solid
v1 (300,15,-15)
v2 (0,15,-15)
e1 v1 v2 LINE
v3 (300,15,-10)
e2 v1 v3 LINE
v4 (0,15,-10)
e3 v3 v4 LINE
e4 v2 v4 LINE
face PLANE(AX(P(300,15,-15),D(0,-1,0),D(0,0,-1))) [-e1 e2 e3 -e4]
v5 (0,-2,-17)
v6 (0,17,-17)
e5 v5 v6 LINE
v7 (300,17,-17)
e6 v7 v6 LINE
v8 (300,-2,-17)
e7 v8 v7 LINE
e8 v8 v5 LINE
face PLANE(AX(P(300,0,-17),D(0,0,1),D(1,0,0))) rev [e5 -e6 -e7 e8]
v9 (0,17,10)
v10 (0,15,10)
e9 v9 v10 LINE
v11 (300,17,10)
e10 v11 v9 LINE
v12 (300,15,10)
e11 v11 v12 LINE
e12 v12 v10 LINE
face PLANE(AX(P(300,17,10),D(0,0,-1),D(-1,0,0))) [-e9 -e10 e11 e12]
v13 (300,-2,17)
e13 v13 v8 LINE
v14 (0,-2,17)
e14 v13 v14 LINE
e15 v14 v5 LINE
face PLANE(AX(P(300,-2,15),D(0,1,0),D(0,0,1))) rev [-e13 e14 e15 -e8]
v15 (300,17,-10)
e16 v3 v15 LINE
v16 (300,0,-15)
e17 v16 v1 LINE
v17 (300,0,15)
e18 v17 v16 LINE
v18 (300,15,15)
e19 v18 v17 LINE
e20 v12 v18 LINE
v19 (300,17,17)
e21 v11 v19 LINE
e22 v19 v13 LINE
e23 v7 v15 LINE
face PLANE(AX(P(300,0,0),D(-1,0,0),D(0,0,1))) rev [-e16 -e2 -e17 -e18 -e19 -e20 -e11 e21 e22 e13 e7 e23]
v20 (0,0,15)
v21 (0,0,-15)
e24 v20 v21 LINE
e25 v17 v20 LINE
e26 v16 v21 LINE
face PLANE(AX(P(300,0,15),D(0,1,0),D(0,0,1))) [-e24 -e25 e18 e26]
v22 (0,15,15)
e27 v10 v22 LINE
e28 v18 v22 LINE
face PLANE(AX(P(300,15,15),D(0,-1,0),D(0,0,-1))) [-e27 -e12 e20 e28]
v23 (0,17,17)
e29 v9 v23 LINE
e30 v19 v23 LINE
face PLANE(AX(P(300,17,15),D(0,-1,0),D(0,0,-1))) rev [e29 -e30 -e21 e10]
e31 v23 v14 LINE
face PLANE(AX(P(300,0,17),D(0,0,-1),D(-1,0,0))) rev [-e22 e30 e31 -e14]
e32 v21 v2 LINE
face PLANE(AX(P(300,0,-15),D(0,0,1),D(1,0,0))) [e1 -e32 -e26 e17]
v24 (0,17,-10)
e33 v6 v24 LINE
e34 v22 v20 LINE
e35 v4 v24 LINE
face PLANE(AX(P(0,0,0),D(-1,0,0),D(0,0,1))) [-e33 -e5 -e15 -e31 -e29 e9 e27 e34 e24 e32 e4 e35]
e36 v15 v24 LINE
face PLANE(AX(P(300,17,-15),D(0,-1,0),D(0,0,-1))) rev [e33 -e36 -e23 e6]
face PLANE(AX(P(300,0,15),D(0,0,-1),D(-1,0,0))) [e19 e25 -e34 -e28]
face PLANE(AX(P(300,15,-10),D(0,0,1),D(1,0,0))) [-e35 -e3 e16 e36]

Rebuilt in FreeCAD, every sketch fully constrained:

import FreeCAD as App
import Part
import Sketcher
Q = App.Units.Quantity


def add_polygon(sketch, points):
    """Adds a closed chain of lines whose ends are joined by coincident constraints."""
    first, n = sketch.GeometryCount, len(points)
    for a, b in zip(points, points[1:] + points[:1]):
        sketch.addGeometry(Part.LineSegment(App.Vector(*a, 0), App.Vector(*b, 0)), False)
    for i in range(n):
        sketch.addConstraint(Sketcher.Constraint("Coincident", first + i, 2, first + (i + 1) % n, 1))

doc = App.newDocument("Part")
body = doc.addObject("PartDesign::Body", "Body")

# Sketch on YZ plane
sketch1 = body.newObject("Sketcher::SketchObject", "Sketch")
sketch1.AttachmentSupport = (doc.getObject("YZ_Plane"), [""])
sketch1.MapMode = "FlatFace"
add_polygon(sketch1, [(15, 15), (15, 10), (17, 10), (17, 17), (-2, 17), (-2, -17), (17, -17), (17, -10), (15, -10), (15, -15), (0, -15), (0, 15)])  # lines 0-11
sketch1.addConstraint([
    Sketcher.Constraint("Vertical", 0),
    Sketcher.Constraint("Horizontal", 1),
    Sketcher.Constraint("Vertical", 2),
    Sketcher.Constraint("Horizontal", 3),
    Sketcher.Constraint("Vertical", 4),
    Sketcher.Constraint("Horizontal", 5),
    Sketcher.Constraint("Vertical", 6),
    Sketcher.Constraint("Horizontal", 7),
    Sketcher.Constraint("Vertical", 8),
    Sketcher.Constraint("Horizontal", 9),
    Sketcher.Constraint("Vertical", 10),
    Sketcher.Constraint("Horizontal", 11),
    Sketcher.Constraint("Symmetric", 9, 2, 10, 2, -1, 1),
    Sketcher.Constraint("Symmetric", 2, 2, 5, 2, -1),
    Sketcher.Constraint("Symmetric", 0, 2, 7, 2, -1),
    Sketcher.Constraint("DistanceX", 1, 1, 1, 2, Q("2 mm")),
    Sketcher.Constraint("DistanceX", 3, 2, 3, 1, Q("19 mm")),
    Sketcher.Constraint("DistanceX", 9, 2, 9, 1, Q("15 mm")),
    Sketcher.Constraint("DistanceY", 0, 2, 0, 1, Q("5 mm")),
    Sketcher.Constraint("DistanceY", 2, 1, 2, 2, Q("7 mm")),
    Sketcher.Constraint("DistanceY", 4, 2, 4, 1, Q("34 mm")),
])
pad1 = body.newObject("PartDesign::Pad", "Pad")
pad1.Profile = sketch1
pad1.Length = 300

doc.recompute()
